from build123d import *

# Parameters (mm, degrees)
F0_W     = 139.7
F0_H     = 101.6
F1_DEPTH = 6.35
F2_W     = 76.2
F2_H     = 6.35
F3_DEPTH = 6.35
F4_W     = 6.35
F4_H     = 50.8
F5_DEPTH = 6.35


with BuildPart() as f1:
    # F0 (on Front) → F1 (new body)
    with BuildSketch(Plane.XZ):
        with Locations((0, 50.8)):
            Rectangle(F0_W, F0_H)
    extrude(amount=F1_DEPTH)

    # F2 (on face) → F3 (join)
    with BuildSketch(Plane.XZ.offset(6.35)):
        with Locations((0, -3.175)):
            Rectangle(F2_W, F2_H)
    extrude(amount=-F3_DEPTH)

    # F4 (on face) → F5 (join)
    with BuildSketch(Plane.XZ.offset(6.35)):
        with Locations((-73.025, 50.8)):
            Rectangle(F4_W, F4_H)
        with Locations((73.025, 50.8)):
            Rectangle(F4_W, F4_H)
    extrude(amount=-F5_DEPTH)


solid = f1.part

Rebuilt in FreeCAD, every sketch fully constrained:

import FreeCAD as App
import Part
import Sketcher

V = App.Vector
Q = App.Units.Quantity


def add_polygon(sketch, points):
    """Adds a closed chain of lines whose ends are joined by coincident constraints."""
    first, n = sketch.GeometryCount, len(points)
    for a, b in zip(points, points[1:] + points[:1]):
        sketch.addGeometry(Part.LineSegment(App.Vector(*a, 0), App.Vector(*b, 0)), False)
    for i in range(n):
        sketch.addConstraint(Sketcher.Constraint("Coincident", first + i, 2, first + (i + 1) % n, 1))

doc = App.newDocument("Part")
body = doc.addObject("PartDesign::Body", "Body")

# Sketch on XZ plane
sketch1 = body.newObject("Sketcher::SketchObject", "Sketch")
sketch1.AttachmentSupport = (doc.getObject("XZ_Plane"), [""])
sketch1.MapMode = "FlatFace"
add_polygon(sketch1, [(-70, 102), (-70, 0), (70, 0), (70, 102)])  # lines 0-3
sketch1.addConstraint([
    Sketcher.Constraint("Vertical", 0),
    Sketcher.Constraint("Horizontal", 1),
    Sketcher.Constraint("Vertical", 2),
    Sketcher.Constraint("Horizontal", 3),
    Sketcher.Constraint("Symmetric", 0, 2, 1, 2, -1, 1),
    Sketcher.Constraint("DistanceY", 0, 2, 0, 1, Q("4 in")),
    Sketcher.Constraint("DistanceX", 1, 1, 1, 2, Q("5.5 in")),
])
pad1 = body.newObject("PartDesign::Pad", "Pad")
pad1.Profile = sketch1
pad1.Length = Q("0.25 in")

# Sketch on XZ plane
sketch2 = body.newObject("Sketcher::SketchObject", "Sketch001")
sketch2.AttachmentSupport = (doc.getObject("XZ_Plane"), [""])
sketch2.MapMode = "FlatFace"
sketch2.AttachmentOffset = App.Placement(V(0, 0, 0.25 * 25.4), App.Rotation())
add_polygon(sketch2, [(-38, 0), (-38, -6), (38, -6), (38, 0)])  # lines 0-3
sketch2.addConstraint([
    Sketcher.Constraint("Vertical", 0),
    Sketcher.Constraint("Horizontal", 1),
    Sketcher.Constraint("Vertical", 2),
    Sketcher.Constraint("Horizontal", 3),
    Sketcher.Constraint("Symmetric", 2, 2, 3, 2, -1, 1),
    Sketcher.Constraint("DistanceX", 1, 1, 1, 2, Q("3 in")),
    Sketcher.Constraint("DistanceY", 0, 2, 0, 1, Q("0.25 in")),
])
pad2 = body.newObject("PartDesign::Pad", "Pad001")
pad2.Profile = sketch2
pad2.Length = Q("0.25 in")
pad2.Reversed = True

# Sketch on XZ plane
sketch3 = body.newObject("Sketcher::SketchObject", "Sketch002")
sketch3.AttachmentSupport = (doc.getObject("XZ_Plane"), [""])
sketch3.MapMode = "FlatFace"
sketch3.AttachmentOffset = App.Placement(V(0, 0, 0.25 * 25.4), App.Rotation())
add_polygon(sketch3, [(-76, 76), (-76, 25), (-70, 25), (-70, 76)])  # lines 0-3
add_polygon(sketch3, [(70, 76), (70, 25), (76, 25), (76, 76)])  # lines 4-7
sketch3.addConstraint([
    Sketcher.Constraint("Vertical", 0),
    Sketcher.Constraint("Horizontal", 1),
    Sketcher.Constraint("Vertical", 2),
    Sketcher.Constraint("Horizontal", 3),
    Sketcher.Constraint("Vertical", 4),
    Sketcher.Constraint("Horizontal", 5),
    Sketcher.Constraint("Vertical", 6),
    Sketcher.Constraint("Horizontal", 7),
    Sketcher.Constraint("Symmetric", 1, 2, 4, 2, -2),
    Sketcher.Constraint("Symmetric", 3, 2, 6, 2, -2),
    Sketcher.Constraint("DistanceY", 0, 2, 0, 1, Q("2 in")),
    Sketcher.Constraint("DistanceX", 0, 2, -1, 1, Q("3 in")),
    Sketcher.Constraint("DistanceY", -1, 1, 0, 2, Q("1 in")),
    Sketcher.Constraint("DistanceX", 1, 1, 1, 2, Q("0.25 in")),
])
pad3 = body.newObject("PartDesign::Pad", "Pad002")
pad3.Profile = sketch3
pad3.Length = Q("0.25 in")
pad3.Reversed = True

doc.recompute()
